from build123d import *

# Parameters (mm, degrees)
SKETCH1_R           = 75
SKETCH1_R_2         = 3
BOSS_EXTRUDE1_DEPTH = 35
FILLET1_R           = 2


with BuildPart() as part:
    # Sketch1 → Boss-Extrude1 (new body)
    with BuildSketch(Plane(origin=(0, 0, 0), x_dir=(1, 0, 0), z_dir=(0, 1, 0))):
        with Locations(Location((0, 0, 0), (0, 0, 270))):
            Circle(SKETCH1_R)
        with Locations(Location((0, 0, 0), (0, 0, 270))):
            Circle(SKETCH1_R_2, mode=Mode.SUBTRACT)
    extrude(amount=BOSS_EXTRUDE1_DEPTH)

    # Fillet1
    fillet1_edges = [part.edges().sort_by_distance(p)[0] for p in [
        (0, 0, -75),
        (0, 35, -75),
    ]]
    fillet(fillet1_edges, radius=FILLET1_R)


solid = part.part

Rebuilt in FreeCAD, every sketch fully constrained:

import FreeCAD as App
import Part
import Sketcher
from FreeCAD import Vector


def edges_at(feature, points):
    """Names of the edges that pass closest to the given points."""
    edges = feature.Shape.Edges
    near = lambda p: min(range(len(edges)), key=lambda i: edges[i].distToShape(Part.Vertex(*p))[0])
    return sorted({f"Edge{near(p) + 1}" for p in points})

doc = App.newDocument("Part")
params = doc.addObject("Spreadsheet::Sheet", "Params")
for row, (alias, value) in enumerate([
    ("sketch1_diameter", "150 mm"),
    ("sketch1_diameter2", "6 mm"),
    ("pad1_length", "35 mm"),
    ("fillet_radius", "2 mm"),
], start=1):
    params.set(f"A{row}", alias)
    params.set(f"B{row}", "=" + value)
    params.setAlias(f"B{row}", alias)

body = doc.addObject("PartDesign::Body", "Body")

sketch1 = doc.addObject("Sketcher::SketchObject", "Sketch")
body.addObject(sketch1)
sketch1.AttachmentSupport = (doc.XZ_Plane, [""])
sketch1.MapMode = "FlatFace"
sketch1.addGeometry([
    Part.Circle(Vector(0, 0, 0), Vector(0, 0, 1), 75),
    Part.Circle(Vector(0, 0, 0), Vector(0, 0, 1), 3),
], False)
sketch1.addConstraint([
    Sketcher.Constraint("Coincident", 0, 3, -1, 1),
    Sketcher.Constraint("Coincident", 1, 3, -1, 1),
    Sketcher.Constraint("Diameter", 0, 150.0),
    Sketcher.Constraint("Diameter", 1, 6.0),
])
sketch1.setExpression("Constraints[2]", "Params.sketch1_diameter")
sketch1.setExpression("Constraints[3]", "Params.sketch1_diameter2")
pad1 = doc.addObject("PartDesign::Pad", "Pad")
body.addObject(pad1)
pad1.Profile = sketch1
pad1.setExpression("Length", "Params.pad1_length")
pad1.Reversed = True
doc.recompute()

fillet = doc.addObject("PartDesign::Fillet", "Fillet")
body.addObject(fillet)
fillet.Base = (pad1, edges_at(pad1, [(0, 0, -75), (0, 35, -75)]))
fillet.setExpression("Radius", "Params.fillet_radius")

doc.recompute()
